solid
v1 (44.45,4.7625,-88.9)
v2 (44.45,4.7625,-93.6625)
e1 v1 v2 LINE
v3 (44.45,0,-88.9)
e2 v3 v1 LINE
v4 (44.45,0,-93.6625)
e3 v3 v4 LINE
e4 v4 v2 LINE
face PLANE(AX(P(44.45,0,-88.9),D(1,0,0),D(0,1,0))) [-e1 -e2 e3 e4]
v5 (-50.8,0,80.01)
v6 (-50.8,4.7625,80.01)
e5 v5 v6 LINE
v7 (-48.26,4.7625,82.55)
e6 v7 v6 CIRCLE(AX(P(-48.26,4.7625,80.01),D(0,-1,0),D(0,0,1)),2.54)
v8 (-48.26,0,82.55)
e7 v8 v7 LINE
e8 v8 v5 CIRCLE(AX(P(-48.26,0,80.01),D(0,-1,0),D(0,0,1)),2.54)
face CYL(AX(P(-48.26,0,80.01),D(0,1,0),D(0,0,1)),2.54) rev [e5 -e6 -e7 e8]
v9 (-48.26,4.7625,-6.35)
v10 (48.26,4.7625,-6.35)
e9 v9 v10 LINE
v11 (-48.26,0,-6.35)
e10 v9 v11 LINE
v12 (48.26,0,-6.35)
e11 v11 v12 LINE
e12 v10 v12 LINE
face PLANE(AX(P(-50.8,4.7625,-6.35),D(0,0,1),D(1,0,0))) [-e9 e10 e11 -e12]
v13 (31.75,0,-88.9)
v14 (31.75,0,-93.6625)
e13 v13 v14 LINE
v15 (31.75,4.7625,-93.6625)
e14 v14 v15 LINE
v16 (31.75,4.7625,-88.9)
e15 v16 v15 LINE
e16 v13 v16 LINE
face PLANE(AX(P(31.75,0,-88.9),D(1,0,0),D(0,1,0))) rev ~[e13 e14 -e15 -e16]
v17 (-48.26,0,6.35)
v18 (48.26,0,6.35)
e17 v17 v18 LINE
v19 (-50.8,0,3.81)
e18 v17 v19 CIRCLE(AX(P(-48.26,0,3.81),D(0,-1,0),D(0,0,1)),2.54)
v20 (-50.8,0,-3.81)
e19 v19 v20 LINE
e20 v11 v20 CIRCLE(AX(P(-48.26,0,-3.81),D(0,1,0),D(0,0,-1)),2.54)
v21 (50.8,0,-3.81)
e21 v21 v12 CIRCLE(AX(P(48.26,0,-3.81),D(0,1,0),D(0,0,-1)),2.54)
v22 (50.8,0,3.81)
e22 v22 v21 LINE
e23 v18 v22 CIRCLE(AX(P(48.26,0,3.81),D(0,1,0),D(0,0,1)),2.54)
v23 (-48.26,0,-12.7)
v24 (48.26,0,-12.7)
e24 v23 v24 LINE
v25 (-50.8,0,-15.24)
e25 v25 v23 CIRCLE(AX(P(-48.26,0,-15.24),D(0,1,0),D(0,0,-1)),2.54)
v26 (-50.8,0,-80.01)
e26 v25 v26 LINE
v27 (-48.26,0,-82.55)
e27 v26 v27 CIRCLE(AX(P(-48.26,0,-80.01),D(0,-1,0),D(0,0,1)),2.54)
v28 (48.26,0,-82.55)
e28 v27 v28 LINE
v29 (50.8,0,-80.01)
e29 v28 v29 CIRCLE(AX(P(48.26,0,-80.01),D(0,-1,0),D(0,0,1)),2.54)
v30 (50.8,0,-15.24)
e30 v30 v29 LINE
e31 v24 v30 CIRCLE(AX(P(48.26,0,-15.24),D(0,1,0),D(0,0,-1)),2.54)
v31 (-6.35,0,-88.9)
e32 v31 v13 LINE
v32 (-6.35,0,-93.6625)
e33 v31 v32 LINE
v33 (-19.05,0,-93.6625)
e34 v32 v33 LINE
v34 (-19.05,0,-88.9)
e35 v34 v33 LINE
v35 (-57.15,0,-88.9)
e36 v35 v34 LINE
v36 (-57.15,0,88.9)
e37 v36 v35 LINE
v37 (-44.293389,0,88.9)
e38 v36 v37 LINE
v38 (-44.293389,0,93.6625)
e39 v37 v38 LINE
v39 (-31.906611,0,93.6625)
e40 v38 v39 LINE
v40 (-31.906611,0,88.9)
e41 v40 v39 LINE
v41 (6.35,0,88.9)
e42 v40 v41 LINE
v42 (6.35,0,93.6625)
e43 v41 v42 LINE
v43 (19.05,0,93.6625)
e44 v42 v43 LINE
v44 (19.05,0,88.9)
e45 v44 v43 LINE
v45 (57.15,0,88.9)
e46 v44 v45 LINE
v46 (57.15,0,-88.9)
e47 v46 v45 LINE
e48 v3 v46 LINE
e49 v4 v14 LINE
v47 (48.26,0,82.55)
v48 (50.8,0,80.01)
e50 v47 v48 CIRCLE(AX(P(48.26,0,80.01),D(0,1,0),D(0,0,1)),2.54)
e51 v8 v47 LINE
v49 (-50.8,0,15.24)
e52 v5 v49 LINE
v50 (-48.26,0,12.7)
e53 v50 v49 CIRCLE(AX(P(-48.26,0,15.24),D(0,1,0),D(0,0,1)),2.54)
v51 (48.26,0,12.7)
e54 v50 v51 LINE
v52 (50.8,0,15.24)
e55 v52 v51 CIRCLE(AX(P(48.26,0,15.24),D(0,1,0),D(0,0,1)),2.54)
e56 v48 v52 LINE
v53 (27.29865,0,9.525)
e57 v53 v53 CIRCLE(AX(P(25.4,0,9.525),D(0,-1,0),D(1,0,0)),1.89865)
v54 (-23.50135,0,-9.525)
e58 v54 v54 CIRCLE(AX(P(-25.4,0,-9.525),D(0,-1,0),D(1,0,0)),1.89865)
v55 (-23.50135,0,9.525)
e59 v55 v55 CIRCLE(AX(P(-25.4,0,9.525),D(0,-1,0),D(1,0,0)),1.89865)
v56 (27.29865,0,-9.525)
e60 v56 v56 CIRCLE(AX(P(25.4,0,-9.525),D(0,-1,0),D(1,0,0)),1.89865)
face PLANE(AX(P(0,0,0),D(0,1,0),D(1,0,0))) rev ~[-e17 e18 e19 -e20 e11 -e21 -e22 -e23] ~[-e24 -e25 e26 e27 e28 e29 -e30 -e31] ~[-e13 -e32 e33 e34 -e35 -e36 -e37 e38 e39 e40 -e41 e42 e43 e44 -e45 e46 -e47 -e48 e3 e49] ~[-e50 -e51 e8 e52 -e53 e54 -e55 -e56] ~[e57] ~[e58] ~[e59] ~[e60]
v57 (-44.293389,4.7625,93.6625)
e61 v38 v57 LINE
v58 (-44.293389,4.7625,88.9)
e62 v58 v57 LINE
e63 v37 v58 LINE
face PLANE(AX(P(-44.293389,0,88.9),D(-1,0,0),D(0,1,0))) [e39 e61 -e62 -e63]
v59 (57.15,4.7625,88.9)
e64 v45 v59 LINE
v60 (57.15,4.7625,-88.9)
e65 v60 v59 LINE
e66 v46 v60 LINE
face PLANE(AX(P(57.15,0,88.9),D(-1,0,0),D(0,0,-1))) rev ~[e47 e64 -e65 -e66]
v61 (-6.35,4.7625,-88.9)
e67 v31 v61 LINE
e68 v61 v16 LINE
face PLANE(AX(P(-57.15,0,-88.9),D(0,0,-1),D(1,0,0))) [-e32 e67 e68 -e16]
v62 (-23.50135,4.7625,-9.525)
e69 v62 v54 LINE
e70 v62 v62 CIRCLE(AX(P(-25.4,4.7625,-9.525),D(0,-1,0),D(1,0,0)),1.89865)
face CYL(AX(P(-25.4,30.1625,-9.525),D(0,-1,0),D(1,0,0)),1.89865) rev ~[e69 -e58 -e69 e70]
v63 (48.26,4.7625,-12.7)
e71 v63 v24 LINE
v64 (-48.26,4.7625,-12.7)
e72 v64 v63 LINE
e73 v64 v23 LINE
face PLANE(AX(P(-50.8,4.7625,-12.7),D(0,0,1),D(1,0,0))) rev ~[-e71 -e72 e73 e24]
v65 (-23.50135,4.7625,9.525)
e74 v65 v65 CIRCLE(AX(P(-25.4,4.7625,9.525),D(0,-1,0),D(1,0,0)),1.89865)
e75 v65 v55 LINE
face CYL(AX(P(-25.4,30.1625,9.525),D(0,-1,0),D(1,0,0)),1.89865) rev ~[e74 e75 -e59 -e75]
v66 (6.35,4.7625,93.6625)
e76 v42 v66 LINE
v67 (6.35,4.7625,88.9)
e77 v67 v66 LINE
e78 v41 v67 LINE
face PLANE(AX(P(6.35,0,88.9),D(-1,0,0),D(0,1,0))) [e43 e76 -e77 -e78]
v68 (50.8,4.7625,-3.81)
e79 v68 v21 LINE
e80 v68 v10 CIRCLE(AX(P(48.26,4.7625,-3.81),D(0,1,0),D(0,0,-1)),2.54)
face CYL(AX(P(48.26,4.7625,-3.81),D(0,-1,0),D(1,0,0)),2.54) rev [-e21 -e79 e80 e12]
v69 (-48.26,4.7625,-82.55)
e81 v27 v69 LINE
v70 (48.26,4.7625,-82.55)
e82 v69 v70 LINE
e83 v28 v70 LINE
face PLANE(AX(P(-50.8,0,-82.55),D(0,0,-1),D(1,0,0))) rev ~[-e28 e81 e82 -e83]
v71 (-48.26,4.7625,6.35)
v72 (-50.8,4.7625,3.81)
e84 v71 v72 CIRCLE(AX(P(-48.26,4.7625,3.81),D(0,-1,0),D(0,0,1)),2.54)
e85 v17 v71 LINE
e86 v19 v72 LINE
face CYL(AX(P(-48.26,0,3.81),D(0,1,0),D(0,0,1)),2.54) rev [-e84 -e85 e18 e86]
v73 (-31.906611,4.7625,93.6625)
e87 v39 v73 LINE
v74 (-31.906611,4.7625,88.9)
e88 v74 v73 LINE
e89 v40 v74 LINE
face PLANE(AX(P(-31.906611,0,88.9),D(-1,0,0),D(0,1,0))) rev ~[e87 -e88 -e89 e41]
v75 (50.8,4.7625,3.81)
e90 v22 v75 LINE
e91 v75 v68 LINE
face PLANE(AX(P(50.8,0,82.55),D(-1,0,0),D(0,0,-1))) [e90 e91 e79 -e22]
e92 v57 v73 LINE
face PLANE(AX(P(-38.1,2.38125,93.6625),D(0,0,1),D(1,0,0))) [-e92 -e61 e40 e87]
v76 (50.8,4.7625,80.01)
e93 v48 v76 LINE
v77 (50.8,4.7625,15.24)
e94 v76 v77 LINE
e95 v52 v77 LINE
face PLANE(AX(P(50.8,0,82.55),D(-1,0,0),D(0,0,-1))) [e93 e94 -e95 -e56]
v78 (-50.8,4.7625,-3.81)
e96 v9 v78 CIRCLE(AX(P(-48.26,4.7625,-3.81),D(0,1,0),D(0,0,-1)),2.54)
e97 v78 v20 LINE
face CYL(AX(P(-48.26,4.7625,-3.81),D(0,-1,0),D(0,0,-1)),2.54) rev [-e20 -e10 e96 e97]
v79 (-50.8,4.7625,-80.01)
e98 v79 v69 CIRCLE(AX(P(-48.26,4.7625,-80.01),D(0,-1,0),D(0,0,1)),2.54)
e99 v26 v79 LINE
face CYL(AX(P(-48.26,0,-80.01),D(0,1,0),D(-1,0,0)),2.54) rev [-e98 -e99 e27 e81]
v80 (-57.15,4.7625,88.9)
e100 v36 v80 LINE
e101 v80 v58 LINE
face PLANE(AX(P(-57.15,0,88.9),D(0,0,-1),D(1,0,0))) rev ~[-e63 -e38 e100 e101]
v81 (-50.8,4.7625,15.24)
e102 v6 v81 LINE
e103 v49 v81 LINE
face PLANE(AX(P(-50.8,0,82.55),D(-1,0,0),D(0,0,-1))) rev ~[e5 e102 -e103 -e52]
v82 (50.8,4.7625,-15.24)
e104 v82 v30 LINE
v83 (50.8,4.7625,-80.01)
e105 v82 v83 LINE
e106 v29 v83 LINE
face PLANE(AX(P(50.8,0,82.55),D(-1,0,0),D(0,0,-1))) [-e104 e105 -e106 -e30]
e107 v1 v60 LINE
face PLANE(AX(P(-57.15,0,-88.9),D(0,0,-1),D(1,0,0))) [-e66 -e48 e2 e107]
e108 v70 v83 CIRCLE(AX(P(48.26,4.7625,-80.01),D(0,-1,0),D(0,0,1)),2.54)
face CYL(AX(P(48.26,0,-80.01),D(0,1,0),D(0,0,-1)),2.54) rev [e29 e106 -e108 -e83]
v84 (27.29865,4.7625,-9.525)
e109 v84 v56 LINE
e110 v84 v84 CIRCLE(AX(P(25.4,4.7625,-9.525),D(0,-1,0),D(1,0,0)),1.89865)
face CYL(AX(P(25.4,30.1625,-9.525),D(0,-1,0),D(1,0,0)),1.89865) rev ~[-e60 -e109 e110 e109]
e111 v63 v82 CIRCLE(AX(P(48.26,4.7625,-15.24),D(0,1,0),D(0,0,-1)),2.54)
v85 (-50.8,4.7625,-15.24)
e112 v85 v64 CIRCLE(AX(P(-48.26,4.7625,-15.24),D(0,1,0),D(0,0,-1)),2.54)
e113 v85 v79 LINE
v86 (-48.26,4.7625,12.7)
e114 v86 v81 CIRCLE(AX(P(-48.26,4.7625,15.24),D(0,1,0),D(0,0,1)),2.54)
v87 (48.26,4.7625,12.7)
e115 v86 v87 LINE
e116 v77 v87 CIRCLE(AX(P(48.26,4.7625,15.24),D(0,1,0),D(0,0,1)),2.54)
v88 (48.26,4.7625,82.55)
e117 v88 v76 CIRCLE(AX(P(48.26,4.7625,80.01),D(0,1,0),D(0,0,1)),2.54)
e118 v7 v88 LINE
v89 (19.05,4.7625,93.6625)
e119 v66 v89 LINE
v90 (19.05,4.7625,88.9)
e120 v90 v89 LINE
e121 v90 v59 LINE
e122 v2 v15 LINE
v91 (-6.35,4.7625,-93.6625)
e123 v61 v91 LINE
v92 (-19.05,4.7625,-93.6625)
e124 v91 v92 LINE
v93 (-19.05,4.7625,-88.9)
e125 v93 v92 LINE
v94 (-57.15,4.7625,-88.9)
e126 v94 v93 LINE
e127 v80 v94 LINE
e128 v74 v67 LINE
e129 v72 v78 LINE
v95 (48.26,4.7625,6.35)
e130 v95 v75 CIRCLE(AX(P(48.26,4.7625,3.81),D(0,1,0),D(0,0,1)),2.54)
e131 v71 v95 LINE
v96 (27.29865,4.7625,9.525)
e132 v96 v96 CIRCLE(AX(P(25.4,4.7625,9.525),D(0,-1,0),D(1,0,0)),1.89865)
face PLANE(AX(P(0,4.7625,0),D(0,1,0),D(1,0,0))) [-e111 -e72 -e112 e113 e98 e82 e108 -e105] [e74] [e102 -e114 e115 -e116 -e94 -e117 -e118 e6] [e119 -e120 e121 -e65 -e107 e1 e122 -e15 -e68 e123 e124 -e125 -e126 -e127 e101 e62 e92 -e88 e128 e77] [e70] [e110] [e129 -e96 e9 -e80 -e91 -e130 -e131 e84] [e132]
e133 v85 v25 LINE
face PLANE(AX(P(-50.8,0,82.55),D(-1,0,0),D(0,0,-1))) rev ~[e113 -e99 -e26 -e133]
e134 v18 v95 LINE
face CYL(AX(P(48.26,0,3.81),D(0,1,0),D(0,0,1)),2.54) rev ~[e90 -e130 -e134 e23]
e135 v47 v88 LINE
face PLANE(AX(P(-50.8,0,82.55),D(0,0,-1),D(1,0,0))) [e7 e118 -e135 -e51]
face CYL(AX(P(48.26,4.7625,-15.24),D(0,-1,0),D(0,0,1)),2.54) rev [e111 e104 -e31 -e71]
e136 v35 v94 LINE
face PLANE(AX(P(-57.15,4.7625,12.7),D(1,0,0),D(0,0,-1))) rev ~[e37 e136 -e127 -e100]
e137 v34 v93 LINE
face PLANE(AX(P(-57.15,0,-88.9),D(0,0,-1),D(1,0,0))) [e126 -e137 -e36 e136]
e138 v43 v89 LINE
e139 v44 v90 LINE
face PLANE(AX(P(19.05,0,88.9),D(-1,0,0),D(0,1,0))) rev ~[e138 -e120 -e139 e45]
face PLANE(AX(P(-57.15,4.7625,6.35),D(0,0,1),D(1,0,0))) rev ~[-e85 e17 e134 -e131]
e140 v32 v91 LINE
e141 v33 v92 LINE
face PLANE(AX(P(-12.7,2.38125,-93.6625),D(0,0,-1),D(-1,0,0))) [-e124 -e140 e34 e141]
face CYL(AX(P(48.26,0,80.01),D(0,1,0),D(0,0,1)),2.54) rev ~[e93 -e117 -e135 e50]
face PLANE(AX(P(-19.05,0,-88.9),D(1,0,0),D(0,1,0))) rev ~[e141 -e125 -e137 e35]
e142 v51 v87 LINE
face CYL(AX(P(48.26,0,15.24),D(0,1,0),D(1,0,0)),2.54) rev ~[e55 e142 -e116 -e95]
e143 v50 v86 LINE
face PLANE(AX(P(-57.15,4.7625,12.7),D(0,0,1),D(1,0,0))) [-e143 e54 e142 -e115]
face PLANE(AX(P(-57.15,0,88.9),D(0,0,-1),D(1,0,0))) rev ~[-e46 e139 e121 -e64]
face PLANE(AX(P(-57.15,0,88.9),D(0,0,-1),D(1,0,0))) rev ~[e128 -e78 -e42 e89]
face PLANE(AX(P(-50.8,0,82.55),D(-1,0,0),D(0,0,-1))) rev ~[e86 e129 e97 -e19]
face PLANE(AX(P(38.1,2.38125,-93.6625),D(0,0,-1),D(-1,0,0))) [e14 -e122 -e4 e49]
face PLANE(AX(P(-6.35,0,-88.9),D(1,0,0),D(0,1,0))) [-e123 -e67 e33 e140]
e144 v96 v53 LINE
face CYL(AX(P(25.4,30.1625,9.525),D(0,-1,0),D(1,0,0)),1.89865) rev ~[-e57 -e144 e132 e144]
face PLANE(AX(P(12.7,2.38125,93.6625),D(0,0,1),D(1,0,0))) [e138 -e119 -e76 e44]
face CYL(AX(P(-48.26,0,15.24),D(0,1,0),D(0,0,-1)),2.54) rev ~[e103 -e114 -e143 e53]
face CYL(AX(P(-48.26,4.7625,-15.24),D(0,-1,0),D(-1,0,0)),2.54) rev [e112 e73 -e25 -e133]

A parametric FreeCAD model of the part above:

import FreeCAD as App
import Part
import Sketcher
from FreeCAD import Vector
Q = App.Units.Quantity


def edges_at(feature, points):
    """Names of the edges that pass closest to the given points."""
    edges = feature.Shape.Edges
    near = lambda p: min(range(len(edges)), key=lambda i: edges[i].distToShape(Part.Vertex(*p))[0])
    return sorted({f"Edge{near(p) + 1}" for p in points})


def add_polygon(sketch, points):
    """Adds a closed chain of lines whose ends are joined by coincident constraints."""
    first, n = sketch.GeometryCount, len(points)
    for a, b in zip(points, points[1:] + points[:1]):
        sketch.addGeometry(Part.LineSegment(App.Vector(*a, 0), App.Vector(*b, 0)), False)
    for i in range(n):
        sketch.addConstraint(Sketcher.Constraint("Coincident", first + i, 2, first + (i + 1) % n, 1))

doc = App.newDocument("Part")
body = doc.addObject("PartDesign::Body", "Body")

# Sketch on XZ plane
sketch1 = body.newObject("Sketcher::SketchObject", "Sketch")
sketch1.AttachmentSupport = (doc.getObject("XZ_Plane"), [""])
sketch1.MapMode = "FlatFace"
add_polygon(sketch1, [(-57, -89), (-57, 89), (57, 89), (57, -89)])  # lines 0-3
add_polygon(sketch1, [(51, 83), (-51, 83), (-51, -83), (51, -83)])  # lines 4-7
sketch1.addConstraint(Sketcher.Constraint("Vertical", 0))
sketch1.addConstraint(Sketcher.Constraint("Horizontal", 1))
sketch1.addConstraint(Sketcher.Constraint("Vertical", 2))
sketch1.addConstraint(Sketcher.Constraint("Horizontal", 3))
sketch1.addConstraint(Sketcher.Constraint("Horizontal", 4))
sketch1.addConstraint(Sketcher.Constraint("Vertical", 5))
sketch1.addConstraint(Sketcher.Constraint("Horizontal", 6))
sketch1.addConstraint(Sketcher.Constraint("Vertical", 7))
sketch1.addConstraint(Sketcher.Constraint("Symmetric", 0, 2, 2, 2, -1, 1))
sketch1.addConstraint(Sketcher.Constraint("Symmetric", 4, 2, 6, 2, -1, 1))
sketch1.addConstraint(Sketcher.Constraint("DistanceX", 4, 2, 4, 1, Q("4 in")))
sketch1.addConstraint(Sketcher.Constraint("DistanceY", 0, 1, 0, 2, Q("7 in")))
sketch1.addConstraint(Sketcher.Constraint("DistanceX", 1, 1, 1, 2, Q("4.5 in")))
sketch1.addConstraint(Sketcher.Constraint("DistanceY", 5, 2, 5, 1, Q("6.5 in")))
pad1 = body.newObject("PartDesign::Pad", "Pad")
pad1.Profile = sketch1
pad1.Length = Q("0.1875 in")
pad1.Reversed = True

# Sketch on XY plane
sketch2 = body.newObject("Sketcher::SketchObject", "Sketch001")
sketch2.AttachmentSupport = (doc.getObject("XY_Plane"), [""])
sketch2.MapMode = "FlatFace"
sketch2.AttachmentOffset = App.Placement(Vector(0, 0, 3.5 * 25.4), App.Rotation())
add_polygon(sketch2, [(-44.3, 4.8), (-44.3, 0), (-31.9, 0), (-31.9, 4.8)])  # lines 0-3
add_polygon(sketch2, [(6.3, 4.8), (6.3, 0), (19.1, 0), (19.1, 4.8)])  # lines 4-7
sketch2.addConstraint(Sketcher.Constraint("Vertical", 0))
sketch2.addConstraint(Sketcher.Constraint("Horizontal", 1))
sketch2.addConstraint(Sketcher.Constraint("Vertical", 2))
sketch2.addConstraint(Sketcher.Constraint("Horizontal", 3))
sketch2.addConstraint(Sketcher.Constraint("Vertical", 4))
sketch2.addConstraint(Sketcher.Constraint("Horizontal", 5))
sketch2.addConstraint(Sketcher.Constraint("Vertical", 6))
sketch2.addConstraint(Sketcher.Constraint("Horizontal", 7))
sketch2.addConstraint(Sketcher.Constraint("PointOnObject", 0, 2, -1))
sketch2.addConstraint(Sketcher.Constraint("PointOnObject", 4, 2, -1))
sketch2.addConstraint(Sketcher.Constraint("Horizontal", 3, 2, 6, 2))
sketch2.addConstraint(Sketcher.Constraint("DistanceX", 5, 1, 5, 2, Q("0.5 in")))
sketch2.addConstraint(Sketcher.Constraint("DistanceY", 0, 2, 0, 1, Q("0.1875 in")))
sketch2.addConstraint(Sketcher.Constraint("DistanceX", -1, 1, 4, 2, Q("0.25 in")))
sketch2.addConstraint(Sketcher.Constraint("DistanceX", 1, 1, 1, 2, Q("12.386778 mm")))
sketch2.addConstraint(Sketcher.Constraint("DistanceX", 0, 2, -1, 1, Q("44.293389 mm")))
pad2 = body.newObject("PartDesign::Pad", "Pad001")
pad2.Profile = sketch2
pad2.Length = Q("0.1875 in")

# Sketch on XY plane
sketch3 = body.newObject("Sketcher::SketchObject", "Sketch002")
sketch3.AttachmentSupport = (doc.getObject("XY_Plane"), [""])
sketch3.MapMode = "FlatFace"
sketch3.AttachmentOffset = App.Placement(Vector(0, 0, -3.5 * 25.4), App.Rotation())
add_polygon(sketch3, [(44.5, 4.8), (44.5, 0), (31.8, 0), (31.8, 4.8)])  # lines 0-3
add_polygon(sketch3, [(-6.3, 4.8), (-6.3, 0), (-19.1, 0), (-19.1, 4.8)])  # lines 4-7
sketch3.addConstraint(Sketcher.Constraint("Vertical", 0))
sketch3.addConstraint(Sketcher.Constraint("Horizontal", 1))
sketch3.addConstraint(Sketcher.Constraint("Vertical", 2))
sketch3.addConstraint(Sketcher.Constraint("Horizontal", 3))
sketch3.addConstraint(Sketcher.Constraint("Vertical", 4))
sketch3.addConstraint(Sketcher.Constraint("Horizontal", 5))
sketch3.addConstraint(Sketcher.Constraint("Vertical", 6))
sketch3.addConstraint(Sketcher.Constraint("Horizontal", 7))
sketch3.addConstraint(Sketcher.Constraint("PointOnObject", 0, 2, -1))
sketch3.addConstraint(Sketcher.Constraint("PointOnObject", 4, 2, -1))
sketch3.addConstraint(Sketcher.Constraint("Horizontal", 3, 2, 6, 2))
sketch3.addConstraint(Sketcher.Constraint("Equal", 3, 5))
sketch3.addConstraint(Sketcher.Constraint("DistanceX", 1, 2, 1, 1, Q("0.5 in")))
sketch3.addConstraint(Sketcher.Constraint("DistanceX", 4, 2, 0, 2, Q("2 in")))
sketch3.addConstraint(Sketcher.Constraint("DistanceY", 0, 2, 0, 1, Q("0.1875 in")))
sketch3.addConstraint(Sketcher.Constraint("DistanceX", -1, 1, 0, 2, Q("1.75 in")))
pad3 = body.newObject("PartDesign::Pad", "Pad002")
pad3.Profile = sketch3
pad3.Length = Q("0.1875 in")
pad3.Reversed = True
doc.recompute()

fillet = body.newObject("PartDesign::Fillet", "Fillet")
fillet.Base = (pad3, edges_at(pad3, [
    (50.8, 2.381, 82.55),
    (50.8, 2.381, -82.55),
    (-50.8, 2.381, -82.55),
    (-50.8, 2.381, 82.55),
]))
fillet.Radius = Q("0.1 in")

# Sketch on XZ plane
sketch4 = body.newObject("Sketcher::SketchObject", "Sketch003")
sketch4.AttachmentSupport = (doc.getObject("XZ_Plane"), [""])
sketch4.MapMode = "FlatFace"
sketch4.AttachmentOffset = App.Placement(Vector(0, 0, -0.1875 * 25.4), App.Rotation())
add_polygon(sketch4, [(-51, -13), (-51, -6), (51, -6), (51, -13)])  # lines 0-3
add_polygon(sketch4, [(-57, 6), (-57, 13), (57, 13), (57, 6)])  # lines 4-7
sketch4.addConstraint(Sketcher.Constraint("Vertical", 0))
sketch4.addConstraint(Sketcher.Constraint("Horizontal", 1))
sketch4.addConstraint(Sketcher.Constraint("Vertical", 2))
sketch4.addConstraint(Sketcher.Constraint("Horizontal", 3))
sketch4.addConstraint(Sketcher.Constraint("Vertical", 4))
sketch4.addConstraint(Sketcher.Constraint("Horizontal", 5))
sketch4.addConstraint(Sketcher.Constraint("Vertical", 6))
sketch4.addConstraint(Sketcher.Constraint("Horizontal", 7))
sketch4.addConstraint(Sketcher.Constraint("Equal", 2, 4))
sketch4.addConstraint(Sketcher.Constraint("DistanceX", 1, 1, 1, 2, Q("4 in")))
sketch4.addConstraint(Sketcher.Constraint("DistanceX", 5, 1, 5, 2, Q("4.5 in")))
sketch4.addConstraint(Sketcher.Constraint("DistanceX", 0, 2, -1, 1, Q("2 in")))
sketch4.addConstraint(Sketcher.Constraint("DistanceY", 3, 2, 4, 2, Q("1 in")))
sketch4.addConstraint(Sketcher.Constraint("DistanceY", 0, 1, 0, 2, Q("0.25 in")))
sketch4.addConstraint(Sketcher.Constraint("DistanceY", 2, 2, -1, 1, Q("0.5 in")))
sketch4.addConstraint(Sketcher.Constraint("DistanceX", 4, 2, -1, 1, Q("2.25 in")))
pad4 = body.newObject("PartDesign::Pad", "Pad003")
pad4.Profile = sketch4
pad4.Length = Q("0.1875 in")
doc.recompute()

fillet2 = body.newObject("PartDesign::Fillet", "Fillet001")
fillet2.Base = (pad4, edges_at(pad4, [
    (-50.8, 2.381, -6.35),
    (-50.8, 2.381, -12.7),
    (50.8, 2.381, -12.7),
    (50.8, 2.381, -6.35),
    (-50.8, 2.381, 12.7),
    (-50.8, 2.381, 6.35),
    (50.8, 2.381, 6.35),
    (50.8, 2.381, 12.7),
]))
fillet2.Radius = Q("0.1 in")

# Sketch on XZ plane
sketch5 = body.newObject("Sketcher::SketchObject", "Sketch004")
sketch5.AttachmentSupport = (doc.getObject("XZ_Plane"), [""])
sketch5.MapMode = "FlatFace"
sketch5.AttachmentOffset = App.Placement(Vector(0, 0, -0.1875 * 25.4), App.Rotation())
sketch5.addGeometry(Part.Circle(Vector(-25.4, -9.5, 0), Vector(0, 0, 1), 1.9), False)
sketch5.addGeometry(Part.Circle(Vector(-25.4, 9.5, 0), Vector(0, 0, 1), 1.9), False)
sketch5.addGeometry(Part.Circle(Vector(25.4, 9.5, 0), Vector(0, 0, 1), 1.9), False)
sketch5.addGeometry(Part.Circle(Vector(25.4, -9.5, 0), Vector(0, 0, 1), 1.9), False)
sketch5.addConstraint(Sketcher.Constraint("Equal", 0, 1))
sketch5.addConstraint(Sketcher.Constraint("Equal", 1, 2))
sketch5.addConstraint(Sketcher.Constraint("Equal", 2, 3))
sketch5.addConstraint(Sketcher.Constraint("Symmetric", 0, 3, 2, 3, -1, 1))
sketch5.addConstraint(Sketcher.Constraint("Symmetric", 1, 3, 3, 3, -1, 1))
sketch5.addConstraint(Sketcher.Constraint("Symmetric", 1, 3, 2, 3, -2))
sketch5.addConstraint(Sketcher.Constraint("DistanceX", 0, 3, -1, 1, Q("1 in")))
sketch5.addConstraint(Sketcher.Constraint("Diameter", 0, Q("0.1495 in")))
sketch5.addConstraint(Sketcher.Constraint("DistanceY", 0, 3, 1, 3, Q("0.75 in")))
doc.recompute()
hole = body.newObject("PartDesign::Hole", "Hole")
hole.Profile = sketch5
hole.ThreadType = "None"
hole.Diameter = Q("0.1495 in")
hole.DepthType = "Dimension"
hole.Depth = Q("1 in")
hole.DrillPoint = "Angled"
hole.DrillPointAngle = 118
hole.Reversed = True

doc.recompute()
